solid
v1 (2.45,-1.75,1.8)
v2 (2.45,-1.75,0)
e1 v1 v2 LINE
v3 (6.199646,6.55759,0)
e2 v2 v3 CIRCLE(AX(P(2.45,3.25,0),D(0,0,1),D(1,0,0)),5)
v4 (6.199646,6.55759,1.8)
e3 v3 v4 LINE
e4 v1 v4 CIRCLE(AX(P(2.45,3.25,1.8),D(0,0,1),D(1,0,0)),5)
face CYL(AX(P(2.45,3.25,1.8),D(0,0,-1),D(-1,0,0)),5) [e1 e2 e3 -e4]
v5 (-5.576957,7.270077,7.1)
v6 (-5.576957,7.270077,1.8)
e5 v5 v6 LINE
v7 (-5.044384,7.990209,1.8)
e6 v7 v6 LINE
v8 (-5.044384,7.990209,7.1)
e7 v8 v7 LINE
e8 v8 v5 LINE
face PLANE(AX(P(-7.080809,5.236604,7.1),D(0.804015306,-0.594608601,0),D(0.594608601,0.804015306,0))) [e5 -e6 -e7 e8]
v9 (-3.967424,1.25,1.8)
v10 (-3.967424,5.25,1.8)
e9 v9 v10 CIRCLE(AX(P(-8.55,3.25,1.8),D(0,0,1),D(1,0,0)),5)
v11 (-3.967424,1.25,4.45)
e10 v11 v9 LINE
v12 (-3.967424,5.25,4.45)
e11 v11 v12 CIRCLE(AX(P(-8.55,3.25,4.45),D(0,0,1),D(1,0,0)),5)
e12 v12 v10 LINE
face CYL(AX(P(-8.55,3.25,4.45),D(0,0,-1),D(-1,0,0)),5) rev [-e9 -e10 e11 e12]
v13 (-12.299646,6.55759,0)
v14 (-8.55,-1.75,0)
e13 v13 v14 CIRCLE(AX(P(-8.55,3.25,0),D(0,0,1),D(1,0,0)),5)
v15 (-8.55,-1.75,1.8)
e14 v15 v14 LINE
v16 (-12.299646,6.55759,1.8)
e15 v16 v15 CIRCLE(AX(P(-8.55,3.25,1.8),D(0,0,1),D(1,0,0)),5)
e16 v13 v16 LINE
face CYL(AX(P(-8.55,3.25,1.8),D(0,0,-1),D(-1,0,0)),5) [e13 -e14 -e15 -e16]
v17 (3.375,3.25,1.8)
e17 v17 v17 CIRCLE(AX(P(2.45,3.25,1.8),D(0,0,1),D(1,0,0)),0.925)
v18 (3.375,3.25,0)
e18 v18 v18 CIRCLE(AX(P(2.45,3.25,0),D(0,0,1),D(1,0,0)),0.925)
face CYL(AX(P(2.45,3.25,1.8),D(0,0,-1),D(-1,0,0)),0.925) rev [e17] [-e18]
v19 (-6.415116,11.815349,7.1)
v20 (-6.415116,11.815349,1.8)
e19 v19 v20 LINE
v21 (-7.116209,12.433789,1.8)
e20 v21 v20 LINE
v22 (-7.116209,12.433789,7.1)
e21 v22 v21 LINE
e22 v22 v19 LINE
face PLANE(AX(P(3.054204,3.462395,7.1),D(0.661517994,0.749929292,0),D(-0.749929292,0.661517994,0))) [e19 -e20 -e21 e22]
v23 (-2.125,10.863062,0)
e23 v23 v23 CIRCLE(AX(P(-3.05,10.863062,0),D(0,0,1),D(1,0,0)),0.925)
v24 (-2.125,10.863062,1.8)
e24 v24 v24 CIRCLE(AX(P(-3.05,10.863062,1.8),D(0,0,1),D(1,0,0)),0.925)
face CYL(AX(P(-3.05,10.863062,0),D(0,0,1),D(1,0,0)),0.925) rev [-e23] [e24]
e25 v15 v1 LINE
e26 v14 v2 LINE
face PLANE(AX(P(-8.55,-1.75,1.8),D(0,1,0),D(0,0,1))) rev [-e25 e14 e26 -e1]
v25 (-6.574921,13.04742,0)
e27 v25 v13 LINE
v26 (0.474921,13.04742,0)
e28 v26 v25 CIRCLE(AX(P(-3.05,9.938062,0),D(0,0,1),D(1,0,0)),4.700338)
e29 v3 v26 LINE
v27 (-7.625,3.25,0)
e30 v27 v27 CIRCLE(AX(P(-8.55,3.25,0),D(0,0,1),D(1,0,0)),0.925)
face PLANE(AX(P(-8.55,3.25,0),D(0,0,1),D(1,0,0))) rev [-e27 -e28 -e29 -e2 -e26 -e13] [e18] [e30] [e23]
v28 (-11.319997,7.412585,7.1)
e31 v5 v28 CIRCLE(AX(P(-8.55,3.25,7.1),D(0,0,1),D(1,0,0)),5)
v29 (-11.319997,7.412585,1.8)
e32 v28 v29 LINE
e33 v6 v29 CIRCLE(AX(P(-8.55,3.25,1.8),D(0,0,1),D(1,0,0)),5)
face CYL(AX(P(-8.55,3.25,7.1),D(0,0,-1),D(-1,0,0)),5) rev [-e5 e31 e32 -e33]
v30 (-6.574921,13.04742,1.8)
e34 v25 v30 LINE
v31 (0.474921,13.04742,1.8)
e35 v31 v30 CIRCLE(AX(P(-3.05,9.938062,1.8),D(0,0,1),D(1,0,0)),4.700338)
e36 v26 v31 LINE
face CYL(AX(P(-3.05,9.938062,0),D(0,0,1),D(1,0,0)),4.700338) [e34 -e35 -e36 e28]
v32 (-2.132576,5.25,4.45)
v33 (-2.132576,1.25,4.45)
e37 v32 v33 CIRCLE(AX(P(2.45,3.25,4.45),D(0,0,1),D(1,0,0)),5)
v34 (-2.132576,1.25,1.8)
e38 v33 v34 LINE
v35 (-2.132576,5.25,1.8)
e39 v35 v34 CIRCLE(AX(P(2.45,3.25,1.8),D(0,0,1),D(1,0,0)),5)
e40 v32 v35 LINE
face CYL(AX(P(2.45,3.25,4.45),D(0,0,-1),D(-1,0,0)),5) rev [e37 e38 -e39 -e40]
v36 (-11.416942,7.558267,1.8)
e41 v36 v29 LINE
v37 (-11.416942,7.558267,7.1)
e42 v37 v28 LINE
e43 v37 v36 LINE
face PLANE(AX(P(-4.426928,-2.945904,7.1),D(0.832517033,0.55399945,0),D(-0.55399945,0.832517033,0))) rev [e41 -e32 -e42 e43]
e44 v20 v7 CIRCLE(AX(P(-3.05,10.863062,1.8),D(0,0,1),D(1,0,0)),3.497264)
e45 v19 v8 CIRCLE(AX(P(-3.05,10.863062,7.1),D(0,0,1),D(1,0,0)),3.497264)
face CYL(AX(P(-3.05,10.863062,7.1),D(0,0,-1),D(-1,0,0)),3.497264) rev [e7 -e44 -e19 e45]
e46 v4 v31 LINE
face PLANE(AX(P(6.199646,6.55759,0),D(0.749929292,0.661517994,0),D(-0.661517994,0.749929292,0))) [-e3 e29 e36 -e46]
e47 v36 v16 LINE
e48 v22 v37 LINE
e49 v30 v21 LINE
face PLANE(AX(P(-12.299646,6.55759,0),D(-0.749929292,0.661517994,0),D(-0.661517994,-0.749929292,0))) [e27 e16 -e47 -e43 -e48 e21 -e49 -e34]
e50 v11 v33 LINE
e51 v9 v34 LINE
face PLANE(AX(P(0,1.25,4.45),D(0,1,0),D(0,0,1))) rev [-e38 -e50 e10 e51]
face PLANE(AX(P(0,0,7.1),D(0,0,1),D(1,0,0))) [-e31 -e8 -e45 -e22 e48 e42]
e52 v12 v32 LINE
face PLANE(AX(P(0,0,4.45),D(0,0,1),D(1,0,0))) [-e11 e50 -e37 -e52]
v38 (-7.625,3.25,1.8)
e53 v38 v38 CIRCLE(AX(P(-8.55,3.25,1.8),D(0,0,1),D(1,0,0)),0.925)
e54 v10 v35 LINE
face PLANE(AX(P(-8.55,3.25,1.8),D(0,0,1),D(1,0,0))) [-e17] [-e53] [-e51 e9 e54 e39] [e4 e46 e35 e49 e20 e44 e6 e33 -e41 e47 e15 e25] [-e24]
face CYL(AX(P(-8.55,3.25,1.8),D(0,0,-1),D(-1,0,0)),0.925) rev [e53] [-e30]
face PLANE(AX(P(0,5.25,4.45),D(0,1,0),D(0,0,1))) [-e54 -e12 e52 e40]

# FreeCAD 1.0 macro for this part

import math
import FreeCAD as App
import Part
import Sketcher

V = App.Vector
Q = App.Units.Quantity

doc = App.newDocument("Part")
body = doc.addObject("PartDesign::Body", "Body")

# Sketch on XY plane
sketch1 = body.newObject("Sketcher::SketchObject", "Sketch")
sketch1.AttachmentSupport = (doc.getObject("XY_Plane"), [""])
sketch1.MapMode = "FlatFace"
sketch1.addGeometry(Part.LineSegment(V(2.45, 8.25, 0), V(-8.55, 8.25, 0)), False)
sketch1.addGeometry(Part.ArcOfCircle(Part.Circle(V(-8.55, 3.25, 0), V(0, 0, 1), 5), math.radians(90), math.radians(270)), False)
sketch1.addGeometry(Part.LineSegment(V(-8.55, -1.75, 0), V(2.45, -1.75, 0)), False)
sketch1.addGeometry(Part.ArcOfCircle(Part.Circle(V(2.45, 3.25, 0), V(0, 0, 1), 5), math.radians(-90), math.radians(90)), False)
sketch1.addGeometry(Part.Circle(V(2.45, 3.25, 0), V(0, 0, 1), 0.925), False)
sketch1.addGeometry(Part.Circle(V(-8.55, 3.25, 0), V(0, 0, 1), 0.925), False)
sketch1.addConstraint(Sketcher.Constraint("Tangent", 0, 2, 1, 1))
sketch1.addConstraint(Sketcher.Constraint("Tangent", 1, 2, 2, 1))
sketch1.addConstraint(Sketcher.Constraint("Tangent", 2, 2, 3, 1))
sketch1.addConstraint(Sketcher.Constraint("Tangent", 3, 2, 0, 1))
sketch1.addConstraint(Sketcher.Constraint("Horizontal", 0))
sketch1.addConstraint(Sketcher.Constraint("Horizontal", 2))
sketch1.addConstraint(Sketcher.Constraint("Coincident", 4, 3, 3, 3))
sketch1.addConstraint(Sketcher.Constraint("Coincident", 5, 3, 1, 3))
sketch1.addConstraint(Sketcher.Constraint("Equal", 4, 5))
sketch1.addConstraint(Sketcher.Constraint("Radius", 1, Q("5 mm")))
sketch1.addConstraint(Sketcher.Constraint("Diameter", 4, Q("1.85 mm")))
sketch1.addConstraint(Sketcher.Constraint("DistanceX", 0, 2, 0, 1, Q("11 mm")))
sketch1.addConstraint(Sketcher.Constraint("DistanceX", 1, 3, -1, 1, Q("8.55 mm")))
sketch1.addConstraint(Sketcher.Constraint("DistanceY", -1, 1, 1, 3, Q("3.25 mm")))
pad1 = body.newObject("PartDesign::Pad", "Pad")
pad1.Profile = sketch1
pad1.Length = 1.8

# Sketch on XY plane
sketch2 = body.newObject("Sketcher::SketchObject", "Sketch001")
sketch2.AttachmentSupport = (doc.getObject("XY_Plane"), [""])
sketch2.MapMode = "FlatFace"
sketch2.AttachmentOffset = App.Placement(V(0, 0, 1.8), App.Rotation())
sketch2.addGeometry(Part.LineSegment(V(-6.574921, 13.04742, 0), V(-12.299646, 6.55759, 0)), False)
sketch2.addGeometry(Part.ArcOfCircle(Part.Circle(V(-8.55, 3.25, 0), V(0, 0, 1), 5), math.radians(90), math.radians(138.584253)), False)
sketch2.addGeometry(Part.LineSegment(V(-8.55, 8.25, 0), V(2.45, 8.25, 0)), False)
sketch2.addGeometry(Part.ArcOfCircle(Part.Circle(V(2.45, 3.25, 0), V(0, 0, 1), 5), math.radians(41.415747), math.radians(90)), False)
sketch2.addGeometry(Part.LineSegment(V(6.199646, 6.55759, 0), V(0.474921, 13.04742, 0)), False)
sketch2.addGeometry(Part.ArcOfCircle(Part.Circle(V(-3.05, 9.938062, 0), V(0, 0, 1), 4.700338), math.radians(41.415747), math.radians(138.584253)), False)
sketch2.addGeometry(Part.Circle(V(-3.05, 10.863062, 0), V(0, 0, 1), 0.925), False)
sketch2.addConstraint(Sketcher.Constraint("Tangent", 0, 2, 1, 2))
sketch2.addConstraint(Sketcher.Constraint("Tangent", 1, 1, 2, 1))
sketch2.addConstraint(Sketcher.Constraint("Tangent", 2, 2, 3, 2))
sketch2.addConstraint(Sketcher.Constraint("Tangent", 3, 1, 4, 1))
sketch2.addConstraint(Sketcher.Constraint("Tangent", 4, 2, 5, 1))
sketch2.addConstraint(Sketcher.Constraint("Tangent", 5, 2, 0, 1))
sketch2.addConstraint(Sketcher.Constraint("Horizontal", 2))
sketch2.addConstraint(Sketcher.Constraint("Equal", 1, 3))
sketch2.addConstraint(Sketcher.Constraint("Horizontal", 0, 2, 3, 1))
sketch2.addConstraint(Sketcher.Constraint("Vertical", 5, 3, 6, 3))
sketch2.addConstraint(Sketcher.Constraint("Radius", 1, Q("5 mm")))
sketch2.addConstraint(Sketcher.Constraint("Diameter", 6, Q("1.85 mm")))
sketch2.addConstraint(Sketcher.Constraint("DistanceX", 2, 1, 2, 2, Q("11 mm")))
sketch2.addConstraint(Sketcher.Constraint("DistanceX", 1, 3, -1, 1, Q("8.55 mm")))
sketch2.addConstraint(Sketcher.Constraint("DistanceY", -1, 1, 1, 3, Q("3.25 mm")))
sketch2.addConstraint(Sketcher.Constraint("Radius", 5, Q("4.700338 mm")))
sketch2.addConstraint(Sketcher.Constraint("DistanceY", 5, 3, 6, 3, Q("0.925 mm")))
sketch2.addConstraint(Sketcher.Constraint("DistanceY", -1, 1, 0, 2, Q("6.55759 mm")))
pad2 = body.newObject("PartDesign::Pad", "Pad001")
pad2.Profile = sketch2
pad2.Length = 1.8
pad2.Reversed = True

# Sketch on XY plane
sketch3 = body.newObject("Sketcher::SketchObject", "Sketch002")
sketch3.AttachmentSupport = (doc.getObject("XY_Plane"), [""])
sketch3.MapMode = "FlatFace"
sketch3.AttachmentOffset = App.Placement(V(0, 0, 1.8), App.Rotation())
sketch3.addGeometry(Part.LineSegment(V(-7.116209, 12.433789, 0), V(-11.416942, 7.558267, 0)), False)
sketch3.addGeometry(Part.LineSegment(V(-11.416942, 7.558267, 0), V(-11.319997, 7.412585, 0)), False)
sketch3.addGeometry(Part.ArcOfCircle(Part.Circle(V(-8.55, 3.25, 0), V(0, 0, 1), 5), math.radians(53.515265), math.radians(123.641827)), False)
sketch3.addGeometry(Part.LineSegment(V(-5.576957, 7.270077, 0), V(-5.044384, 7.990209, 0)), False)
sketch3.addGeometry(Part.ArcOfCircle(Part.Circle(V(-3.05, 10.863062, 0), V(0, 0, 1), 3.497264), math.radians(164.199124), math.radians(235.230955)), False)
sketch3.addGeometry(Part.LineSegment(V(-6.415116, 11.815349, 0), V(-7.116209, 12.433789, 0)), False)
sketch3.addConstraint(Sketcher.Constraint("Coincident", 0, 2, 1, 1))
sketch3.addConstraint(Sketcher.Constraint("Coincident", 1, 2, 2, 2))
sketch3.addConstraint(Sketcher.Constraint("Coincident", 2, 1, 3, 1))
sketch3.addConstraint(Sketcher.Constraint("Coincident", 3, 2, 4, 2))
sketch3.addConstraint(Sketcher.Constraint("Coincident", 4, 1, 5, 1))
sketch3.addConstraint(Sketcher.Constraint("Coincident", 5, 2, 0, 1))
sketch3.addConstraint(Sketcher.Constraint("Perpendicular", 0, 5))
sketch3.addConstraint(Sketcher.Constraint("Radius", 2, Q("5 mm")))
sketch3.addConstraint(Sketcher.Constraint("DistanceX", 2, 3, 4, 3, Q("5.5 mm")))
sketch3.addConstraint(Sketcher.Constraint("DistanceX", 2, 3, -1, 1, Q("8.55 mm")))
sketch3.addConstraint(Sketcher.Constraint("DistanceY", -1, 1, 2, 3, Q("3.25 mm")))
sketch3.addConstraint(Sketcher.Constraint("Radius", 4, Q("3.497264 mm")))
sketch3.addConstraint(Sketcher.Constraint("Distance", 0, Q("6.501308 mm")))
sketch3.addConstraint(Sketcher.Constraint("Distance", 1, Q("0.17499 mm")))
sketch3.addConstraint(Sketcher.Constraint("Distance", 3, Q("0.89567 mm")))
sketch3.addConstraint(Sketcher.Constraint("Distance", 5, Q("0.93488 mm")))
sketch3.addConstraint(Sketcher.Constraint("DistanceX", 0, 2, -1, 1, Q("11.416942 mm")))
sketch3.addConstraint(Sketcher.Constraint("DistanceY", -1, 1, 3, 2, Q("7.990209 mm")))
sketch3.addConstraint(Sketcher.Constraint("DistanceX", 1, 2, 2, 1, Q("5.74304 mm")))
sketch3.addConstraint(Sketcher.Constraint("DistanceY", 2, 1, 1, 2, Q("0.142509 mm")))
pad3 = body.newObject("PartDesign::Pad", "Pad002")
pad3.Profile = sketch3
pad3.Length = 5.3

# Sketch on XY plane
sketch4 = body.newObject("Sketcher::SketchObject", "Sketch003")
sketch4.AttachmentSupport = (doc.getObject("XY_Plane"), [""])
sketch4.MapMode = "FlatFace"
sketch4.AttachmentOffset = App.Placement(V(0, 0, 1.8), App.Rotation())
sketch4.addGeometry(Part.ArcOfCircle(Part.Circle(V(2.45, 3.25, 0), V(0, 0, 1), 5), math.radians(156.421822), math.radians(203.578178)), False)
sketch4.addGeometry(Part.LineSegment(V(-2.132576, 5.25, 0), V(-3.967424, 5.25, 0)), False)
sketch4.addGeometry(Part.ArcOfCircle(Part.Circle(V(-8.55, 3.25, 0), V(0, 0, 1), 5), math.radians(-23.578178), math.radians(23.578178)), False)
sketch4.addGeometry(Part.LineSegment(V(-3.967424, 1.25, 0), V(-2.132576, 1.25, 0)), False)
sketch4.addConstraint(Sketcher.Constraint("Coincident", 0, 1, 1, 1))
sketch4.addConstraint(Sketcher.Constraint("Coincident", 1, 2, 2, 2))
sketch4.addConstraint(Sketcher.Constraint("Coincident", 2, 1, 3, 1))
sketch4.addConstraint(Sketcher.Constraint("Coincident", 3, 2, 0, 2))
sketch4.addConstraint(Sketcher.Constraint("Horizontal", 1))
sketch4.addConstraint(Sketcher.Constraint("Horizontal", 3))
sketch4.addConstraint(Sketcher.Constraint("Equal", 0, 2))
sketch4.addConstraint(Sketcher.Constraint("Horizontal", 0, 3, 2, 3))
sketch4.addConstraint(Sketcher.Constraint("Vertical", 1, 2, 2, 1))
sketch4.addConstraint(Sketcher.Constraint("Radius", 0, Q("5 mm")))
sketch4.addConstraint(Sketcher.Constraint("DistanceX", 2, 3, 0, 3, Q("11 mm")))
sketch4.addConstraint(Sketcher.Constraint("DistanceY", 0, 3, 0, 1, Q("2 mm")))
sketch4.addConstraint(Sketcher.Constraint("DistanceX", -1, 1, 0, 3, Q("2.45 mm")))
sketch4.addConstraint(Sketcher.Constraint("DistanceY", -1, 1, 0, 3, Q("3.25 mm")))
pad4 = body.newObject("PartDesign::Pad", "Pad003")
pad4.Profile = sketch4
pad4.Length = 2.65

doc.recompute()
